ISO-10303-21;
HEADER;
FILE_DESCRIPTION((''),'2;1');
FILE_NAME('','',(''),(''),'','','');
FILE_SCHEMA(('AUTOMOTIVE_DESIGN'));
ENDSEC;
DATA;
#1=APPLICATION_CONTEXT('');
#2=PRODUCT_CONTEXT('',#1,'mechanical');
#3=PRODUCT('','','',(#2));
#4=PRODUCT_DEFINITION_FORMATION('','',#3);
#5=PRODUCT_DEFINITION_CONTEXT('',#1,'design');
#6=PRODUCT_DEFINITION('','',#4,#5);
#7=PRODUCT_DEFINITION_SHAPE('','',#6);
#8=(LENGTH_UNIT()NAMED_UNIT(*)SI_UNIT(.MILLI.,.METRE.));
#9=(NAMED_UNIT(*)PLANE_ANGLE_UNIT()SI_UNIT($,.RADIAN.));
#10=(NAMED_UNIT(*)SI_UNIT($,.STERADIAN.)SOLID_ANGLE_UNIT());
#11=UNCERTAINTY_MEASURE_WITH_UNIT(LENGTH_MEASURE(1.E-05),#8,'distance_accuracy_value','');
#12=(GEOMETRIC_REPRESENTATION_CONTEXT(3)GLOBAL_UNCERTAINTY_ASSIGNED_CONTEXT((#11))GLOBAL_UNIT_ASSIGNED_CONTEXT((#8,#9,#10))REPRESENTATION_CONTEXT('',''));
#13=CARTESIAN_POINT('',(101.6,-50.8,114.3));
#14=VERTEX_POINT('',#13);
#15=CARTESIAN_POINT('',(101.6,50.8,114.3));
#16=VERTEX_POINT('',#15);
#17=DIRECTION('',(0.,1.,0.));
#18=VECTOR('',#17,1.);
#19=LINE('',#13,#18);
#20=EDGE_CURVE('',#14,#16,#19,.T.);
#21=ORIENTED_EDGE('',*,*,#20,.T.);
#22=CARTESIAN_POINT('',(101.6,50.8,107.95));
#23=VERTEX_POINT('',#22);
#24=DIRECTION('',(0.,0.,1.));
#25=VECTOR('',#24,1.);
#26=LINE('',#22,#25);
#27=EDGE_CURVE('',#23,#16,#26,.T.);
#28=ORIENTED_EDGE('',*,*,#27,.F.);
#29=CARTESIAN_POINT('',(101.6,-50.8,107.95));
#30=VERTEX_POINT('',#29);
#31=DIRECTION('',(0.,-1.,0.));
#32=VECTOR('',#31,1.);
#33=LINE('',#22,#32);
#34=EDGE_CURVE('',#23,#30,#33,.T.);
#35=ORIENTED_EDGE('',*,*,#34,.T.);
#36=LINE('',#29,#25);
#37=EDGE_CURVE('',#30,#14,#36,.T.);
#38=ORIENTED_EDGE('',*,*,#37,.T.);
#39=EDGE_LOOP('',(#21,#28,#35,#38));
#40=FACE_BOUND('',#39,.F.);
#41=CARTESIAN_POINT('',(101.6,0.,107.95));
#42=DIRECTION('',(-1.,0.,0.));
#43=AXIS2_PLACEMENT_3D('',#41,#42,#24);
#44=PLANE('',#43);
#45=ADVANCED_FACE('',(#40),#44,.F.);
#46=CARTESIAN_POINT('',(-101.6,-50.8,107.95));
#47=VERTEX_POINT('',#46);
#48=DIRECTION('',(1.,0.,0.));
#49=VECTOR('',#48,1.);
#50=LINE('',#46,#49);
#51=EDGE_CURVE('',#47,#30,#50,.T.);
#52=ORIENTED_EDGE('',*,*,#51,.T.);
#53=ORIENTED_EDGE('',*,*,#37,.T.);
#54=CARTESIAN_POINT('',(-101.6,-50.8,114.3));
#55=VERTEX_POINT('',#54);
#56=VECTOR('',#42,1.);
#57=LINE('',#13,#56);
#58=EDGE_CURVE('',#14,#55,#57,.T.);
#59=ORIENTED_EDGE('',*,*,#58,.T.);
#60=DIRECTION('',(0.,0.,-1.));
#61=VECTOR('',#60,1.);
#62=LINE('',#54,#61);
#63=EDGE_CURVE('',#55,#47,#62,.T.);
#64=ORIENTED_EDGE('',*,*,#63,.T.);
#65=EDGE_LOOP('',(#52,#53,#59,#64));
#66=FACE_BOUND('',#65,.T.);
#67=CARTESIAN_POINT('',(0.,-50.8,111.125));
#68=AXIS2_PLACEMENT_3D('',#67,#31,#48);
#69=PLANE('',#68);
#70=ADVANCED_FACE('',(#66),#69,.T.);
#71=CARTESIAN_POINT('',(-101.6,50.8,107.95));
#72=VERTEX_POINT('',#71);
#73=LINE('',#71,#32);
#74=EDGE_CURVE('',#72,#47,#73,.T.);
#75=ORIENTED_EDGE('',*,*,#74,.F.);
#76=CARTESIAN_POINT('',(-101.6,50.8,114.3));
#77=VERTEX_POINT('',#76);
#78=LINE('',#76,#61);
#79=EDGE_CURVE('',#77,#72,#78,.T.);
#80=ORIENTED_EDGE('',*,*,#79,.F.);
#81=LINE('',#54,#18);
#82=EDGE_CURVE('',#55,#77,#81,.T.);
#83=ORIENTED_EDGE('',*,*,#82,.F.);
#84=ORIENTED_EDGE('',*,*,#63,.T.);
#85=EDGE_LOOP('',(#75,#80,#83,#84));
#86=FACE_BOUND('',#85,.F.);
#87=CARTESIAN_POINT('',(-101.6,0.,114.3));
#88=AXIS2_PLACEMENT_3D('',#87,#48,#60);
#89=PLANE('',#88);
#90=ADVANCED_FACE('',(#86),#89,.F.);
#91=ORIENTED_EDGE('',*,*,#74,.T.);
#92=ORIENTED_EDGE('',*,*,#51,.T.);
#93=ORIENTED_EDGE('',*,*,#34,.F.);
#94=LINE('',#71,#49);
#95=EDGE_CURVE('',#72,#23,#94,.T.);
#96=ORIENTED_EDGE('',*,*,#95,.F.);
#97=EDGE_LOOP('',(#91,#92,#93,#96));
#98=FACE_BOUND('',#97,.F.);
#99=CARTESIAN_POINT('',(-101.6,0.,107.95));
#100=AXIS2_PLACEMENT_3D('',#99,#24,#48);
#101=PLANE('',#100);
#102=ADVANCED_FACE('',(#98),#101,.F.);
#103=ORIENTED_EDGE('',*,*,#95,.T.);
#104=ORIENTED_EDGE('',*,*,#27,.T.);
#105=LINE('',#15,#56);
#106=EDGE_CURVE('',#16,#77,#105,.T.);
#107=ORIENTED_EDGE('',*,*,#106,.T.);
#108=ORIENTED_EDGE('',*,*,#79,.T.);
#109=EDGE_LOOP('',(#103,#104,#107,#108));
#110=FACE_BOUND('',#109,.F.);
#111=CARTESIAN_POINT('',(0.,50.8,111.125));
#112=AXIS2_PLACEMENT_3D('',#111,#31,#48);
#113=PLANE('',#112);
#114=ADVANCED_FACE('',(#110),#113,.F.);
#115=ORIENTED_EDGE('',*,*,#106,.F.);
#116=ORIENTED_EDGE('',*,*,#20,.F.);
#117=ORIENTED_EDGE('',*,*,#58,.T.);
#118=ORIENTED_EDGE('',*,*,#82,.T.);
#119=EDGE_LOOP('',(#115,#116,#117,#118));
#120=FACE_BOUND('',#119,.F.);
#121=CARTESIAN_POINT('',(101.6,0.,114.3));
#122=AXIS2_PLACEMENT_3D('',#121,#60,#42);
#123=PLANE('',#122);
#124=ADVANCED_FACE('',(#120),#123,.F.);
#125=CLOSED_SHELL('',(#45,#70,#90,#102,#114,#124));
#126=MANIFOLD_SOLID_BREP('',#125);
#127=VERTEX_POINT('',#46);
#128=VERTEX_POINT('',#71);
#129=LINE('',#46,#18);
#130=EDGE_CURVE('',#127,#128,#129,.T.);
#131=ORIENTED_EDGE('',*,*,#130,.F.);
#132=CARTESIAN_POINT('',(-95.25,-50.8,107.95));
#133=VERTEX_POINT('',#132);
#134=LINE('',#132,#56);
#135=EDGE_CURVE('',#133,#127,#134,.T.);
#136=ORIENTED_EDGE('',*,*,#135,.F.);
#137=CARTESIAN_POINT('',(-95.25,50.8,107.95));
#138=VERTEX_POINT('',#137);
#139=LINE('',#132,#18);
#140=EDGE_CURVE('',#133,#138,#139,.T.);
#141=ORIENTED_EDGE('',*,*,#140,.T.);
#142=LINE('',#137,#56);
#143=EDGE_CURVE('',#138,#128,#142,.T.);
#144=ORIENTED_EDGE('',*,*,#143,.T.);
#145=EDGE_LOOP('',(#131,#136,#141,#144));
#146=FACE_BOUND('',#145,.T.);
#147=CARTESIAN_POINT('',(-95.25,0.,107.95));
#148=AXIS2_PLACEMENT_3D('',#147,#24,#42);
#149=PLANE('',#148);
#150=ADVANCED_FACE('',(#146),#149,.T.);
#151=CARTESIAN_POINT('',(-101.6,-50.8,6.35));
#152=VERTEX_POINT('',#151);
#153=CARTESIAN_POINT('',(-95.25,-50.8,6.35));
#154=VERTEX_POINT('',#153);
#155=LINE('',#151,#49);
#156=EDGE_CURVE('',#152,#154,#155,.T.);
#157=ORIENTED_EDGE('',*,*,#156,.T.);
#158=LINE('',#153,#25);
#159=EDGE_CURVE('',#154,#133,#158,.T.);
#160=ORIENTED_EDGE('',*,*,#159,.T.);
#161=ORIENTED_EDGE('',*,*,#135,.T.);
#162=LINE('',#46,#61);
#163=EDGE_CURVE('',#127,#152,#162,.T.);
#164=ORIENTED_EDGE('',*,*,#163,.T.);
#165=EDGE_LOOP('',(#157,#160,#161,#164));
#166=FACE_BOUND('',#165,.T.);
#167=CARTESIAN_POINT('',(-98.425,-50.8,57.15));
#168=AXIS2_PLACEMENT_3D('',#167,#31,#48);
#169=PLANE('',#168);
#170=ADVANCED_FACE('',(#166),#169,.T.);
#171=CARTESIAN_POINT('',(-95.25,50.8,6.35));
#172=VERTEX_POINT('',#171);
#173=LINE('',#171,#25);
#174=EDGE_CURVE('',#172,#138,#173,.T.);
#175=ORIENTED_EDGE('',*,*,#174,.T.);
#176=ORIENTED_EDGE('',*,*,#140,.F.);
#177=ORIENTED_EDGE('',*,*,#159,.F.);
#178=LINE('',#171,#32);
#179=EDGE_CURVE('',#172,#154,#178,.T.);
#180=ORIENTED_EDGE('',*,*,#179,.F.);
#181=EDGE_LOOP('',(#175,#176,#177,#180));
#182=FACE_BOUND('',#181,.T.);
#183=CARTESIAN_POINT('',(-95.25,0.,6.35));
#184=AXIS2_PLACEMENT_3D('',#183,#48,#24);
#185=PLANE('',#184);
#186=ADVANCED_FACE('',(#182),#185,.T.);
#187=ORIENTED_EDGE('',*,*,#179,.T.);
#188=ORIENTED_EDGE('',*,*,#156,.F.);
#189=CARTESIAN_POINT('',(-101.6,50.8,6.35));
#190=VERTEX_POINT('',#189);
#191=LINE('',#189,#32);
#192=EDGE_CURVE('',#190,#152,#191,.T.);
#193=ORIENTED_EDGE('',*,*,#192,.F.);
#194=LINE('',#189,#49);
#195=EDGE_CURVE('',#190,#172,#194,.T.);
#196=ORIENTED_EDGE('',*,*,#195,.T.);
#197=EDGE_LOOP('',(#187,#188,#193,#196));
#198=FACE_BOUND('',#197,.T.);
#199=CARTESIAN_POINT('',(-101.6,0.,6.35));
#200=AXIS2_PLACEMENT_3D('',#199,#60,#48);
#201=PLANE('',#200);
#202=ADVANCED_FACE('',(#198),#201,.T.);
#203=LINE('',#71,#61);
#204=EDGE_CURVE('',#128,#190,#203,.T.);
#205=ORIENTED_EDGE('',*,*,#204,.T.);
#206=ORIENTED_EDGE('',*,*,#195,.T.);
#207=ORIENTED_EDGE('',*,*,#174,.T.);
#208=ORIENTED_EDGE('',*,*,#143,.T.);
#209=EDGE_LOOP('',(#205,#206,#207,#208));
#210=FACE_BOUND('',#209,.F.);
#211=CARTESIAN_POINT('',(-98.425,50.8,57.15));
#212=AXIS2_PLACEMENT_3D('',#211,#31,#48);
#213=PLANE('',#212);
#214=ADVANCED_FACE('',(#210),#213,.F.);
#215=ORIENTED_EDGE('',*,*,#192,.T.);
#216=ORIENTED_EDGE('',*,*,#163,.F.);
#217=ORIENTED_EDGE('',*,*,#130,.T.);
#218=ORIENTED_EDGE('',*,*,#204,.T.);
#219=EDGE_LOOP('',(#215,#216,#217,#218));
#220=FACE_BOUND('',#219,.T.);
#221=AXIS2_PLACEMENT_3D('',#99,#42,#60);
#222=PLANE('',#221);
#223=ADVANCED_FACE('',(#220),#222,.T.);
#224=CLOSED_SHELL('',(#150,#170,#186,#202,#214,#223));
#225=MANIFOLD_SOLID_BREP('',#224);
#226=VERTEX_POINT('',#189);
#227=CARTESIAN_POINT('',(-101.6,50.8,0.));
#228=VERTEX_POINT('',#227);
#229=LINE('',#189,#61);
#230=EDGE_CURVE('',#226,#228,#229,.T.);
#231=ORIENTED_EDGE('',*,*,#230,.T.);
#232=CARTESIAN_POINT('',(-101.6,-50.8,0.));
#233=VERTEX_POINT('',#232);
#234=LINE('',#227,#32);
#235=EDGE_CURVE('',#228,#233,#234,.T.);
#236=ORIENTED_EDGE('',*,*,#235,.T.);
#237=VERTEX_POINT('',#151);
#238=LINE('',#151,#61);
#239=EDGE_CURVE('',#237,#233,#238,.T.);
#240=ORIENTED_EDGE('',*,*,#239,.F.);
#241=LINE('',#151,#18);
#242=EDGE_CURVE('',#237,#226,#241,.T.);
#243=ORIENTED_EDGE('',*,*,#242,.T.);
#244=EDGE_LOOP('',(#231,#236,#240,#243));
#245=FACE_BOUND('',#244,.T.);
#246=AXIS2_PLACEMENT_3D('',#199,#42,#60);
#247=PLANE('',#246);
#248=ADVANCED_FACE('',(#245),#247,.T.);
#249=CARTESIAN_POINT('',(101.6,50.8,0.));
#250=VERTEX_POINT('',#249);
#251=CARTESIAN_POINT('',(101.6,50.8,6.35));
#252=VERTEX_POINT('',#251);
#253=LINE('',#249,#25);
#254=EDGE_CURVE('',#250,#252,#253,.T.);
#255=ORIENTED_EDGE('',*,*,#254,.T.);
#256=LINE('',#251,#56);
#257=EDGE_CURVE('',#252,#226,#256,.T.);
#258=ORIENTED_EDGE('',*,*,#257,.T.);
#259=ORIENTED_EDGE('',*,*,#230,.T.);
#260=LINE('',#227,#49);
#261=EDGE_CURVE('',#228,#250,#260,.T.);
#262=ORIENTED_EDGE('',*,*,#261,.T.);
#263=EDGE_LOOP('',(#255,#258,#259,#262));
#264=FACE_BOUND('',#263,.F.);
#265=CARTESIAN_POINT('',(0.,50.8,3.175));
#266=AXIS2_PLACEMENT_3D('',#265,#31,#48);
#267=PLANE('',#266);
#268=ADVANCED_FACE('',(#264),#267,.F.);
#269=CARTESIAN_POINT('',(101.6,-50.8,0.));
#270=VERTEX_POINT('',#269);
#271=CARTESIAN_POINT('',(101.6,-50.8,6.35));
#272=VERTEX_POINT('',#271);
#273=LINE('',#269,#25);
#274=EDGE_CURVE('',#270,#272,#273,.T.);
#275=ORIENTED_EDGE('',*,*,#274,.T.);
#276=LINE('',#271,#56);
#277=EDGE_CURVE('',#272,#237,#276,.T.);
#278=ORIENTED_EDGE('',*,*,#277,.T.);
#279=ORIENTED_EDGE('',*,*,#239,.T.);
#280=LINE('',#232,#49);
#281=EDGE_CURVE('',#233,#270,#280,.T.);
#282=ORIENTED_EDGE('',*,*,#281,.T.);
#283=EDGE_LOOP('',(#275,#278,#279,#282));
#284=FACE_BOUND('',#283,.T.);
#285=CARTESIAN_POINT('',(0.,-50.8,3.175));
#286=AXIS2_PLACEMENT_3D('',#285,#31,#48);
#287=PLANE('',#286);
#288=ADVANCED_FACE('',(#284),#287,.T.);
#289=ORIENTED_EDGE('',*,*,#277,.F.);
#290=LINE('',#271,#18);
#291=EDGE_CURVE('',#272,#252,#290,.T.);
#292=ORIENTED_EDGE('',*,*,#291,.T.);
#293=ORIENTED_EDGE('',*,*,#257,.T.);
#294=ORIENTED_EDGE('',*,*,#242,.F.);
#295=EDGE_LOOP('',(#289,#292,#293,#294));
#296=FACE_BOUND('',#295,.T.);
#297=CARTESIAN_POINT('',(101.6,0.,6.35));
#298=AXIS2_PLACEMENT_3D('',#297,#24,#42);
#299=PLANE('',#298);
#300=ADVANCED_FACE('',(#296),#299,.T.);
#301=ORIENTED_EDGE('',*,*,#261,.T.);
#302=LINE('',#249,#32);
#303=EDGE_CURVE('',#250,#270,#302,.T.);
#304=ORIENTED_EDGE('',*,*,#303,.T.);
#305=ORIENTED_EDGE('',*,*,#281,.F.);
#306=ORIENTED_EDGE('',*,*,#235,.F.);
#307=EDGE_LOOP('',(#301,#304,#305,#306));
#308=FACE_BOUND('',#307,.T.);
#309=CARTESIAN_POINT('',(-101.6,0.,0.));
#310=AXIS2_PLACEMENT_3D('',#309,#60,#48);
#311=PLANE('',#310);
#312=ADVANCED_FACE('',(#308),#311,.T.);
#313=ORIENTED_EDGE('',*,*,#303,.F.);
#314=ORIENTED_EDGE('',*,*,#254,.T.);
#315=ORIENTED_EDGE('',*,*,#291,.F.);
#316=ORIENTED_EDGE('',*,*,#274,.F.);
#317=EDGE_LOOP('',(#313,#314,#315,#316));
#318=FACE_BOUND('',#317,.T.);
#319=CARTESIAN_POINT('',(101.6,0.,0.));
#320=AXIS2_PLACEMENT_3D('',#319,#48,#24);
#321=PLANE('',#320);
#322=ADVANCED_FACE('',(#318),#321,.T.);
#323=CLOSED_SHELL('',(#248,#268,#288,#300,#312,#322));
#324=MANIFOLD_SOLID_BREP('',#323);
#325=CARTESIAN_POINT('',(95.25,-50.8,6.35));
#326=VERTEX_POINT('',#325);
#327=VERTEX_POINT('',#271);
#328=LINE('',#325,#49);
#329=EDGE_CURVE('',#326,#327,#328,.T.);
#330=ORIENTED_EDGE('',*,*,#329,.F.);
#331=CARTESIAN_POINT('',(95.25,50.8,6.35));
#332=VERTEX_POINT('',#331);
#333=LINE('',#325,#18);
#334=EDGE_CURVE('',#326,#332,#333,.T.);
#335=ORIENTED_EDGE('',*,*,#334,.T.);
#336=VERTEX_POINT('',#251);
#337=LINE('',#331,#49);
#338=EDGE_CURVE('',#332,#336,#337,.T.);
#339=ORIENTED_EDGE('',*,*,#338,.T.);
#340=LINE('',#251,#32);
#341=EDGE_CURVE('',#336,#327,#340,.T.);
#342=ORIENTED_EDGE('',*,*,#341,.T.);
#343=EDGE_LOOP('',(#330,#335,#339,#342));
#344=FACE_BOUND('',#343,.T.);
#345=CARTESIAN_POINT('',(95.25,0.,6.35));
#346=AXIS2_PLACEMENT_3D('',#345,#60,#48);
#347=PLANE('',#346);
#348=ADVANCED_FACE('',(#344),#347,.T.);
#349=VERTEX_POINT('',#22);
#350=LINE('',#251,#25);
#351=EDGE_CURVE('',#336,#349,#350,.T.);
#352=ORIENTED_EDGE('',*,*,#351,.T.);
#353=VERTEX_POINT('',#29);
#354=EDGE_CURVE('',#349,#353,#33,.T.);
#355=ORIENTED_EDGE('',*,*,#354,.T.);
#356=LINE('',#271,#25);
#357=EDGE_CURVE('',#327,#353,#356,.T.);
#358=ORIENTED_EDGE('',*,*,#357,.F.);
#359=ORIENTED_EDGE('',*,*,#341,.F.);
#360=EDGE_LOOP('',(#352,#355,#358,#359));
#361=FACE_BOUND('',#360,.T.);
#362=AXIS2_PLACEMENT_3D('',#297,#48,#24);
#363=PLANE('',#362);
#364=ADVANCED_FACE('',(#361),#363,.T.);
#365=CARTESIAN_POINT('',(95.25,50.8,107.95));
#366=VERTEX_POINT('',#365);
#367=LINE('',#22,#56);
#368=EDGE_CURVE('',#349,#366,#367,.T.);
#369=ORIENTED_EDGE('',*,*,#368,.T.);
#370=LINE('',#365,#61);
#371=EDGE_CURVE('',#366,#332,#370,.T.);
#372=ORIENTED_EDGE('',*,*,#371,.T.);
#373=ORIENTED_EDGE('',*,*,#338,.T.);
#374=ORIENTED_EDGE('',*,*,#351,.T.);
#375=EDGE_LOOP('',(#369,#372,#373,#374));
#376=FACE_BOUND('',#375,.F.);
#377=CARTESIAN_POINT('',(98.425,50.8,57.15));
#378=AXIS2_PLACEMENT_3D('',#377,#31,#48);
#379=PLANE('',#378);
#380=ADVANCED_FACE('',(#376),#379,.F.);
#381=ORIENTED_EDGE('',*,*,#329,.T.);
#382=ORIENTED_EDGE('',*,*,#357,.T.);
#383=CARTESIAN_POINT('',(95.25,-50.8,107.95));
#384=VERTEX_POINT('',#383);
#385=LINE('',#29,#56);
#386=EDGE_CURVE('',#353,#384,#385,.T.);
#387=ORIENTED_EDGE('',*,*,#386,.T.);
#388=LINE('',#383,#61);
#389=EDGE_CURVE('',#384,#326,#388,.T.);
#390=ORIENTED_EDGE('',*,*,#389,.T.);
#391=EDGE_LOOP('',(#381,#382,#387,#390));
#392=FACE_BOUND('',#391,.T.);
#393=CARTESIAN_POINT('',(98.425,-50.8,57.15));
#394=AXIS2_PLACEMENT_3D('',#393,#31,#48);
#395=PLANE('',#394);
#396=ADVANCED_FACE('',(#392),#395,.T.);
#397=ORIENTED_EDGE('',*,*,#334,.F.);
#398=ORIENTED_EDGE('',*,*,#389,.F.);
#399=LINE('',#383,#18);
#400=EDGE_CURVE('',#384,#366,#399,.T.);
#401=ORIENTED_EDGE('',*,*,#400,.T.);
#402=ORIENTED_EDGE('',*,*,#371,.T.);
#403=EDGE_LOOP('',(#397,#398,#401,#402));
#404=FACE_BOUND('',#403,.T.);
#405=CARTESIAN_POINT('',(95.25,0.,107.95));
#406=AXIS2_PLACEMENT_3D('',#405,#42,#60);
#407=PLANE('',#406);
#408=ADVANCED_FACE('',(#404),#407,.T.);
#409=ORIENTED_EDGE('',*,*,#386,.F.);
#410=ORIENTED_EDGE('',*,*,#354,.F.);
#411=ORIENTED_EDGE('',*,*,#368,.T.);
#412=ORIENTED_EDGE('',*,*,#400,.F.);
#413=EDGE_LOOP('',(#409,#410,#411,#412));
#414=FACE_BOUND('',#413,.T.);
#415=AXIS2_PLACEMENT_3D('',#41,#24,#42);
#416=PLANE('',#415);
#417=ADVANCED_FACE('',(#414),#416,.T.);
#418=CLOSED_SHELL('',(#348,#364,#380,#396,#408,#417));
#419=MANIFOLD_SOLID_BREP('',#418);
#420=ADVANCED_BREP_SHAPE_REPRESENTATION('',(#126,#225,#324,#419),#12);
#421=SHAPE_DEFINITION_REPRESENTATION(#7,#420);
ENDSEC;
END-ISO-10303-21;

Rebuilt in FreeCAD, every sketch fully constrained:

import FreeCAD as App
import Part
import Sketcher
from FreeCAD import Vector
Q = App.Units.Quantity


def add_polygon(sketch, points):
    """Adds a closed chain of lines whose ends are joined by coincident constraints."""
    first, n = sketch.GeometryCount, len(points)
    for a, b in zip(points, points[1:] + points[:1]):
        sketch.addGeometry(Part.LineSegment(App.Vector(*a, 0), App.Vector(*b, 0)), False)
    for i in range(n):
        sketch.addConstraint(Sketcher.Constraint("Coincident", first + i, 2, first + (i + 1) % n, 1))

doc = App.newDocument("Part")
params = doc.addObject("Spreadsheet::Sheet", "Params")
for row, (alias, value) in enumerate([
    ("sketch1_width", "8 in"),
    ("sketch1_height", "0.25 in"),
    ("pad1_length", "4 in"),
    ("sketch2_height", "4 in"),
    ("sketch2_width", "0.25 in"),
    ("pad2_length", "2 in"),
    ("pad2_length2", "2 in"),
], start=1):
    params.set(f"A{row}", alias)
    params.set(f"B{row}", "=" + value)
    params.setAlias(f"B{row}", alias)

body = doc.addObject("PartDesign::Body", "Body")
body.AllowCompound = True

# Sketch on XZ plane
sketch1 = body.newObject("Sketcher::SketchObject", "Sketch")
sketch1.AttachmentSupport = (doc.getObject("XZ_Plane"), [""])
sketch1.MapMode = "FlatFace"
add_polygon(sketch1, [(-101.6, 114.3), (-101.6, 107.95), (101.6, 107.95), (101.6, 114.3)])  # lines 0-3
add_polygon(sketch1, [(-101.6, 6.35), (-101.6, 0), (101.6, 0), (101.6, 6.35)])  # lines 4-7
sketch1.addConstraint([
    Sketcher.Constraint("Vertical", 0),
    Sketcher.Constraint("Horizontal", 1),
    Sketcher.Constraint("Vertical", 2),
    Sketcher.Constraint("Horizontal", 3),
    Sketcher.Constraint("Vertical", 4),
    Sketcher.Constraint("Horizontal", 5),
    Sketcher.Constraint("Vertical", 6),
    Sketcher.Constraint("Horizontal", 7),
    Sketcher.Constraint("Symmetric", 4, 2, 5, 2, -1, 1),
    Sketcher.Constraint("Vertical", 3, 2, 4, 2),
    Sketcher.Constraint("Vertical", 2, 2, 5, 2),
    Sketcher.Constraint("Equal", 2, 4),
    Sketcher.Constraint("DistanceX", 1, 1, 1, 2, Q("8 in")),
    Sketcher.Constraint("DistanceY", 6, 2, 1, 2, Q("4 in")),
    Sketcher.Constraint("DistanceY", 0, 2, 0, 1, Q("0.25 in")),
])
sketch1.setExpression("Constraints[20]", "Params.sketch1_width")
sketch1.setExpression("Constraints[22]", "Params.sketch1_height")
pad1 = body.newObject("PartDesign::Pad", "Pad")
pad1.Profile = sketch1
pad1.setExpression("Length", "Params.pad1_length")
pad1.Midplane = True
body2 = doc.addObject("PartDesign::Body", "Body001")
body2.AllowCompound = True

# Sketch on XZ plane
sketch2 = body2.newObject("Sketcher::SketchObject", "Sketch001")
sketch2.AttachmentSupport = (doc.getObject("XZ_Plane001"), [""])
sketch2.MapMode = "FlatFace"
add_polygon(sketch2, [(-101.6, 107.95), (-101.6, 6.35), (-95.25, 6.35), (-95.25, 107.95)])  # lines 0-3
add_polygon(sketch2, [(95.25, 6.35), (101.6, 6.35), (101.6, 107.95), (95.25, 107.95)])  # lines 4-7
sketch2.addConstraint([
    Sketcher.Constraint("Vertical", 0),
    Sketcher.Constraint("Horizontal", 1),
    Sketcher.Constraint("Vertical", 2),
    Sketcher.Constraint("Horizontal", 3),
    Sketcher.Constraint("Horizontal", 4),
    Sketcher.Constraint("Vertical", 5),
    Sketcher.Constraint("Horizontal", 6),
    Sketcher.Constraint("Vertical", 7),
    Sketcher.Constraint("Symmetric", 0, 2, 4, 2, -2),
    Sketcher.Constraint("Symmetric", 2, 2, 6, 2, -2),
    Sketcher.Constraint("DistanceY", 0, 2, 0, 1, Q("4 in")),
    Sketcher.Constraint("DistanceX", 0, 2, -1, 1, Q("4 in")),
    Sketcher.Constraint("DistanceX", 1, 1, 1, 2, Q("0.25 in")),
    Sketcher.Constraint("DistanceY", -1, 1, 0, 2, Q("0.25 in")),
])
sketch2.setExpression("Constraints[18]", "Params.sketch2_height")
sketch2.setExpression("Constraints[20]", "Params.sketch2_width")
pad2 = body2.newObject("PartDesign::Pad", "Pad001")
pad2.Profile = sketch2
pad2.Type = "TwoLengths"
pad2.setExpression("Length", "Params.pad2_length")
pad2.setExpression("Length2", "Params.pad2_length2")

doc.recompute()
